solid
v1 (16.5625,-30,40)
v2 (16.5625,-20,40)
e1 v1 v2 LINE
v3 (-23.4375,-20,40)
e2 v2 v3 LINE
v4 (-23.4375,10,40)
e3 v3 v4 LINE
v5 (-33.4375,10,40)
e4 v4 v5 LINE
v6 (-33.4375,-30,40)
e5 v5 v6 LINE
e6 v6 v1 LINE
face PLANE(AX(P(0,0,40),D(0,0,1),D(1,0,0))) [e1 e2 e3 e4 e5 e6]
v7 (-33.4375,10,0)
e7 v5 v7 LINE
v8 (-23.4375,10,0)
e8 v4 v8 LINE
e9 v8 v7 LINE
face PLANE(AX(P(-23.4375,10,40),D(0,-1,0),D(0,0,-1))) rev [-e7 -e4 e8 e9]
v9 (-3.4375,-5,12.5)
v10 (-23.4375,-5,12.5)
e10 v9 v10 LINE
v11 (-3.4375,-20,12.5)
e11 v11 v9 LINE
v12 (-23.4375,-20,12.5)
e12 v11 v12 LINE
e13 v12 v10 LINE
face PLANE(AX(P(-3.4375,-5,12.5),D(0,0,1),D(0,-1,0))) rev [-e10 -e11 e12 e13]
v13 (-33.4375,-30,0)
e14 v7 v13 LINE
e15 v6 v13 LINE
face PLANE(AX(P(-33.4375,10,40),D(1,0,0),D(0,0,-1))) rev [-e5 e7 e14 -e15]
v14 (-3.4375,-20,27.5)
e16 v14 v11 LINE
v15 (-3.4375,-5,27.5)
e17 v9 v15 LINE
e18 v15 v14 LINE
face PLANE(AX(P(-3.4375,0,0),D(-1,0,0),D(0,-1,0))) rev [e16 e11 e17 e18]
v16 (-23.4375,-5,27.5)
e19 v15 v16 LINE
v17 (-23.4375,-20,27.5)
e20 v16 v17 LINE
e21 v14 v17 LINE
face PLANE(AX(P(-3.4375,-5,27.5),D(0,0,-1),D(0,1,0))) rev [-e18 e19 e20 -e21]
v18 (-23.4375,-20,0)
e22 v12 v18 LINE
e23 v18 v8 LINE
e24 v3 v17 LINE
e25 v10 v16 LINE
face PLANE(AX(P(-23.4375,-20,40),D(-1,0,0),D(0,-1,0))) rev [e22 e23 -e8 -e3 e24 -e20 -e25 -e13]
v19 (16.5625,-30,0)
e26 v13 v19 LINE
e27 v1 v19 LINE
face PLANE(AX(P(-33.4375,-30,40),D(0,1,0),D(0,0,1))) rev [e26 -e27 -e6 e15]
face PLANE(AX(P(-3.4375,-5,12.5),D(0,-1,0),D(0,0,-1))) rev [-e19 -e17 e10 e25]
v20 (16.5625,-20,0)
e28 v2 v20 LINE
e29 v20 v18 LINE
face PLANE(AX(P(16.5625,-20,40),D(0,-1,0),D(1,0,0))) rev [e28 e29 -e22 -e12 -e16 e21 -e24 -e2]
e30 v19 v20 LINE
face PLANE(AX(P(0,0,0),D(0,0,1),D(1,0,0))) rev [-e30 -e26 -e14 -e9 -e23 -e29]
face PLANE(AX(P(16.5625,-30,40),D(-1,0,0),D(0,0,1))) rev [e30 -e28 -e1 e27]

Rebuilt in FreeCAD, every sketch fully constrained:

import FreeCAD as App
import Part
import Sketcher


def add_polygon(sketch, points):
    """Adds a closed chain of lines whose ends are joined by coincident constraints."""
    first, n = sketch.GeometryCount, len(points)
    for a, b in zip(points, points[1:] + points[:1]):
        sketch.addGeometry(Part.LineSegment(App.Vector(*a, 0), App.Vector(*b, 0)), False)
    for i in range(n):
        sketch.addConstraint(Sketcher.Constraint("Coincident", first + i, 2, first + (i + 1) % n, 1))

doc = App.newDocument("Part")
body = doc.addObject("PartDesign::Body", "Body")

# Sketch on XY plane
sketch1 = body.newObject("Sketcher::SketchObject", "Sketch")
sketch1.AttachmentSupport = (doc.getObject("XY_Plane"), [""])
sketch1.MapMode = "FlatFace"
add_polygon(sketch1, [(-23, 10), (-33, 10), (-33, -30), (17, -30), (17, -20), (-23, -20)])  # lines 0-5
sketch1.addConstraint(Sketcher.Constraint("Horizontal", 0))
sketch1.addConstraint(Sketcher.Constraint("Vertical", 1))
sketch1.addConstraint(Sketcher.Constraint("Horizontal", 2))
sketch1.addConstraint(Sketcher.Constraint("Vertical", 3))
sketch1.addConstraint(Sketcher.Constraint("Horizontal", 4))
sketch1.addConstraint(Sketcher.Constraint("Vertical", 5))
sketch1.addConstraint(Sketcher.Constraint("Equal", 4, 1))
sketch1.addConstraint(Sketcher.Constraint("Equal", 0, 3))
sketch1.addConstraint(Sketcher.Constraint("DistanceX", 0, 2, 0, 1, 10.0))
sketch1.addConstraint(Sketcher.Constraint("DistanceX", 2, 1, 2, 2, 50.0))
sketch1.addConstraint(Sketcher.Constraint("DistanceY", -1, 1, 0, 2, 10.0))
sketch1.addConstraint(Sketcher.Constraint("DistanceX", 0, 2, -1, 1, 33.4375))
pad1 = body.newObject("PartDesign::Pad", "Pad")
pad1.Profile = sketch1
pad1.Length = 40

# Sketch on YZ plane
sketch2 = body.newObject("Sketcher::SketchObject", "Sketch001")
sketch2.AttachmentSupport = (doc.getObject("YZ_Plane"), [""])
sketch2.MapMode = "FlatFace"
sketch2.AttachmentOffset = App.Placement(App.Vector(0, 0, -23.4375), App.Rotation())
add_polygon(sketch2, [(-5, 28), (-20, 28), (-20, 12), (-5, 12)])  # lines 0-3
sketch2.addConstraint(Sketcher.Constraint("Horizontal", 0))
sketch2.addConstraint(Sketcher.Constraint("Vertical", 1))
sketch2.addConstraint(Sketcher.Constraint("Horizontal", 2))
sketch2.addConstraint(Sketcher.Constraint("Vertical", 3))
sketch2.addConstraint(Sketcher.Constraint("Equal", 2, 1))
sketch2.addConstraint(Sketcher.Constraint("DistanceX", 0, 2, 0, 1, 15.0))
sketch2.addConstraint(Sketcher.Constraint("DistanceX", 0, 2, -1, 1, 20.0))
sketch2.addConstraint(Sketcher.Constraint("DistanceY", -1, 1, 0, 2, 27.5))
pad2 = body.newObject("PartDesign::Pad", "Pad001")
pad2.Profile = sketch2
pad2.Length = 20

doc.recompute()
